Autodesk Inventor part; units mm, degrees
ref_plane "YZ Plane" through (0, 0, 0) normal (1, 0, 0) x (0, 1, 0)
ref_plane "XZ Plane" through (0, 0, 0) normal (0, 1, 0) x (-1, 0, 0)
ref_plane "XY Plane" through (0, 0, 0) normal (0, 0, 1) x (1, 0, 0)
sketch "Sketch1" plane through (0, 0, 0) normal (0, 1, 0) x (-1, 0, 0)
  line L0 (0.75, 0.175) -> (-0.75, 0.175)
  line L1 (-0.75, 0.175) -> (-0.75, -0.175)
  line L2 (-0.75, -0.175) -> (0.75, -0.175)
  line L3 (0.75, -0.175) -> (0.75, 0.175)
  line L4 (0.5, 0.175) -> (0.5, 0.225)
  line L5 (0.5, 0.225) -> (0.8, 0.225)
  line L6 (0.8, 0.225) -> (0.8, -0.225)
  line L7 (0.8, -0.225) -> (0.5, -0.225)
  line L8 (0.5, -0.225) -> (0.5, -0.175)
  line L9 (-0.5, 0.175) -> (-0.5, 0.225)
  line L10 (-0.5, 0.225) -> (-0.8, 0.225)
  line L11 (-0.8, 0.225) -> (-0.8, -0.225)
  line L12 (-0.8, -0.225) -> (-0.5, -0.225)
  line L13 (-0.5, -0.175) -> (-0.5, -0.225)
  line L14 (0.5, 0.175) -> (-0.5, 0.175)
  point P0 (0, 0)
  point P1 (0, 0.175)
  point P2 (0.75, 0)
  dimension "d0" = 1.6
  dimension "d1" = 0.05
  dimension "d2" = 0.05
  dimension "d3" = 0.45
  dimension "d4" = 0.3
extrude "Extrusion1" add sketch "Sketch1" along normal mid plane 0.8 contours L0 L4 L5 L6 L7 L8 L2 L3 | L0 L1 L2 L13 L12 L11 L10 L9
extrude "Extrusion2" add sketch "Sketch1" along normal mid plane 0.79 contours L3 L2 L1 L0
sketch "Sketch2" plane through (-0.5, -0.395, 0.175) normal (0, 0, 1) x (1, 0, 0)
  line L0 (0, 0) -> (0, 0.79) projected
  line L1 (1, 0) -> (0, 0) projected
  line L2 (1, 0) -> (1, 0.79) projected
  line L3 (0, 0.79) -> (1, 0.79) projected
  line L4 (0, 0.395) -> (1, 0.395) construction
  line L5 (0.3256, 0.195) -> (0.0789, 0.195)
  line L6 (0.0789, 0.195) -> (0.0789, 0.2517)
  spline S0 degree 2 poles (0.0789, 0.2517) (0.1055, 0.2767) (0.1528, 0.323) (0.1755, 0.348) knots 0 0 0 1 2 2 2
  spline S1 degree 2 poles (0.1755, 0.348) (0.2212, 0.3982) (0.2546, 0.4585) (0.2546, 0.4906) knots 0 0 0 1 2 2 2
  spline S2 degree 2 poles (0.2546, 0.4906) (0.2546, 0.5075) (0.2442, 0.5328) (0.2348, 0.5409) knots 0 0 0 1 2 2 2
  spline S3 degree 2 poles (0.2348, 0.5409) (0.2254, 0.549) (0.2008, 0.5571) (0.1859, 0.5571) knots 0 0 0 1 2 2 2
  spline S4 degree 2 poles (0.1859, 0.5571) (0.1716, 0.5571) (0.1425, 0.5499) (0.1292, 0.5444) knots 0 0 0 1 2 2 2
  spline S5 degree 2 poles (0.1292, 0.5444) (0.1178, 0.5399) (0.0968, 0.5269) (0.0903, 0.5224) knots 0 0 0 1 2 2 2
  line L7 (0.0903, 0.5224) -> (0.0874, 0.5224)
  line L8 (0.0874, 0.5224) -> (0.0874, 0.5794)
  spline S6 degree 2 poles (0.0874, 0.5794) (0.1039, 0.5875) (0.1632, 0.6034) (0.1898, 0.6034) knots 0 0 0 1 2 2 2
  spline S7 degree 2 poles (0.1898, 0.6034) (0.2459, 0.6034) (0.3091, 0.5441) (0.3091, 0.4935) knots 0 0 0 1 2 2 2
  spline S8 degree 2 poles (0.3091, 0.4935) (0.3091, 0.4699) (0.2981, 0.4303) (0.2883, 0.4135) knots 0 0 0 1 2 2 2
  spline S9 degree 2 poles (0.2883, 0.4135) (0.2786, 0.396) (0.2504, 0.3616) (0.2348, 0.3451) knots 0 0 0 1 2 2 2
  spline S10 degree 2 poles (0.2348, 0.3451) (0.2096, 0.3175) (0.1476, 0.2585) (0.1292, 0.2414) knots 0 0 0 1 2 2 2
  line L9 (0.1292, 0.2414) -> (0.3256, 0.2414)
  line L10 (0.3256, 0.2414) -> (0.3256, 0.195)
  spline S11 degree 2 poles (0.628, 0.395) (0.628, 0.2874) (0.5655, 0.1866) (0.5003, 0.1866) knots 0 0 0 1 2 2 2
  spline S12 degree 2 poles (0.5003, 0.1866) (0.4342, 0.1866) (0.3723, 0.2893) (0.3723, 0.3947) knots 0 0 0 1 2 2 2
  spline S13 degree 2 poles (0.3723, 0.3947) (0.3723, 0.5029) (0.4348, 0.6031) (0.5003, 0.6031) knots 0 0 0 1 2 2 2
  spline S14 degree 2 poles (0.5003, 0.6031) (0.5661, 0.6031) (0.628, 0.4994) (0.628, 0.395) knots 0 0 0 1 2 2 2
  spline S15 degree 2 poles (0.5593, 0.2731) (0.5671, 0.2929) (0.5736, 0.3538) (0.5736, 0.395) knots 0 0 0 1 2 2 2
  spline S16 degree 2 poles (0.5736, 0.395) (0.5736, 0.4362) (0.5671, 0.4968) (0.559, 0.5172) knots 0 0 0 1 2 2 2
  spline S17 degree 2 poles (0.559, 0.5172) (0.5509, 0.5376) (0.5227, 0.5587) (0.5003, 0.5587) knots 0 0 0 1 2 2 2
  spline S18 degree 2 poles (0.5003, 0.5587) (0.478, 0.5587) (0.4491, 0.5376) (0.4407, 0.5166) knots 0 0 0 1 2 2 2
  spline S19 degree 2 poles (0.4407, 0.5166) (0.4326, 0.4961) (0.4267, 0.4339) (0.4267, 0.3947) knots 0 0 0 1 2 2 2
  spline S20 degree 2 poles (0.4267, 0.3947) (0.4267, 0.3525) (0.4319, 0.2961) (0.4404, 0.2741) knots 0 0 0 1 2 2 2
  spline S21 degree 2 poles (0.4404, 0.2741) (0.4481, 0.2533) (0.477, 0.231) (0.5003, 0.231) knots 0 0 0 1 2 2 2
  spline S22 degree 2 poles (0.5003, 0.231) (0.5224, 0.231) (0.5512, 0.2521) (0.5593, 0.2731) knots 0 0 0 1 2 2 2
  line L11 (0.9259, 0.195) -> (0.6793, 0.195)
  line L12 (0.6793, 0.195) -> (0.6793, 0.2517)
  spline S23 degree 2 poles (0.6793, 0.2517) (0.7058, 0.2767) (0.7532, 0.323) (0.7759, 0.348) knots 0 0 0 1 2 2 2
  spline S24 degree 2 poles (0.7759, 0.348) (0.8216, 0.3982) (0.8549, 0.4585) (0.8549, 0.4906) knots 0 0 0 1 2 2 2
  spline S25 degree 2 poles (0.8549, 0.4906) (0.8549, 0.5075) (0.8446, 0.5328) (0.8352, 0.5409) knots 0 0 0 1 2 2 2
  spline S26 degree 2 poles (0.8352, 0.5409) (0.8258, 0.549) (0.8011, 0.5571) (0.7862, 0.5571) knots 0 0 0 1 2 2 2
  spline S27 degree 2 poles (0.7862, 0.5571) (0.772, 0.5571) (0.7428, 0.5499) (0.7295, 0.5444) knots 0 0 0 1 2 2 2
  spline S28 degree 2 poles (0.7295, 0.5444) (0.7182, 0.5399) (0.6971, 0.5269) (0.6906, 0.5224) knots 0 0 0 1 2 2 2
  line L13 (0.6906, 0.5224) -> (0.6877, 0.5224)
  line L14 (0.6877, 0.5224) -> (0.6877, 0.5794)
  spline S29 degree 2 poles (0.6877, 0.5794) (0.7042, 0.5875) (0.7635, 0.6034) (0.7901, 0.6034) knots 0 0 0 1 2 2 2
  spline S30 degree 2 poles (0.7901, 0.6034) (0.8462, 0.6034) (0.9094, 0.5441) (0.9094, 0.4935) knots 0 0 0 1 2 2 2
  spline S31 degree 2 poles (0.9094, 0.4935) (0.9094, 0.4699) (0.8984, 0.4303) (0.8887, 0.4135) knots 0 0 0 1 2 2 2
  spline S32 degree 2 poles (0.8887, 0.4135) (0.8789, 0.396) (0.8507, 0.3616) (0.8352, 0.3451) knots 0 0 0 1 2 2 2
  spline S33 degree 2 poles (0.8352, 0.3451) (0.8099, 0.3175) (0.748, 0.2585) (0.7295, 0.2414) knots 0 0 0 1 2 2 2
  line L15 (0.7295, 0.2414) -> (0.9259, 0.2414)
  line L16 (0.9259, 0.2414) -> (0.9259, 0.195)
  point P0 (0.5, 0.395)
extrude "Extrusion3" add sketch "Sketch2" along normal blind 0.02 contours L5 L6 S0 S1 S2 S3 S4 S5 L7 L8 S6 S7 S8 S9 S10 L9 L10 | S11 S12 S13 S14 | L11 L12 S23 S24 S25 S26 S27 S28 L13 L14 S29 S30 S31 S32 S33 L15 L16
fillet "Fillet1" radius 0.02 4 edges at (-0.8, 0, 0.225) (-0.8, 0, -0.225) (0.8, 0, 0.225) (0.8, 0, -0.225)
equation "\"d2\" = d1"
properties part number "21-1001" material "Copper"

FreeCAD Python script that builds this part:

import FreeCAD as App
import Part
import Sketcher


def edges_at(feature, points):
    """Names of the edges that pass closest to the given points."""
    edges = feature.Shape.Edges
    near = lambda p: min(range(len(edges)), key=lambda i: edges[i].distToShape(Part.Vertex(*p))[0])
    return sorted({f"Edge{near(p) + 1}" for p in points})

doc = App.newDocument("Part")
body = doc.addObject("PartDesign::Body", "Body")
body.AllowCompound = True

# Sketch on XZ plane
sketch1 = body.newObject("Sketcher::SketchObject", "Sketch")
sketch1.AttachmentSupport = (doc.getObject("XZ_Plane"), [""])
sketch1.MapMode = "FlatFace"
sketch1.addGeometry(Part.LineSegment(App.Vector(-0.5, 0.17, 0), App.Vector(-0.75, 0.17, 0)), False)
sketch1.addGeometry(Part.LineSegment(App.Vector(-0.75, 0.17, 0), App.Vector(-0.75, -0.17, 0)), False)
sketch1.addGeometry(Part.LineSegment(App.Vector(-0.75, -0.17, 0), App.Vector(-0.5, -0.17, 0)), False)
sketch1.addGeometry(Part.LineSegment(App.Vector(-0.5, -0.17, 0), App.Vector(-0.5, -0.23, 0)), False)
sketch1.addGeometry(Part.LineSegment(App.Vector(-0.5, -0.23, 0), App.Vector(-0.8, -0.23, 0)), False)
sketch1.addGeometry(Part.LineSegment(App.Vector(-0.8, -0.23, 0), App.Vector(-0.8, 0.23, 0)), False)
sketch1.addGeometry(Part.LineSegment(App.Vector(-0.8, 0.23, 0), App.Vector(-0.5, 0.23, 0)), False)
sketch1.addGeometry(Part.LineSegment(App.Vector(-0.5, 0.23, 0), App.Vector(-0.5, 0.17, 0)), False)
sketch1.addGeometry(Part.LineSegment(App.Vector(0.75, 0.17, 0), App.Vector(0.5, 0.17, 0)), False)
sketch1.addGeometry(Part.LineSegment(App.Vector(0.5, 0.17, 0), App.Vector(0.5, 0.23, 0)), False)
sketch1.addGeometry(Part.LineSegment(App.Vector(0.5, 0.23, 0), App.Vector(0.8, 0.23, 0)), False)
sketch1.addGeometry(Part.LineSegment(App.Vector(0.8, 0.23, 0), App.Vector(0.8, -0.23, 0)), False)
sketch1.addGeometry(Part.LineSegment(App.Vector(0.8, -0.23, 0), App.Vector(0.5, -0.23, 0)), False)
sketch1.addGeometry(Part.LineSegment(App.Vector(0.5, -0.23, 0), App.Vector(0.5, -0.17, 0)), False)
sketch1.addGeometry(Part.LineSegment(App.Vector(0.5, -0.17, 0), App.Vector(0.75, -0.17, 0)), False)
sketch1.addGeometry(Part.LineSegment(App.Vector(0.75, -0.17, 0), App.Vector(0.75, 0.17, 0)), False)
sketch1.addConstraint(Sketcher.Constraint("Coincident", 0, 2, 1, 1))
sketch1.addConstraint(Sketcher.Constraint("Coincident", 1, 2, 2, 1))
sketch1.addConstraint(Sketcher.Constraint("Coincident", 2, 2, 3, 1))
sketch1.addConstraint(Sketcher.Constraint("Coincident", 3, 2, 4, 1))
sketch1.addConstraint(Sketcher.Constraint("Coincident", 4, 2, 5, 1))
sketch1.addConstraint(Sketcher.Constraint("Coincident", 5, 2, 6, 1))
sketch1.addConstraint(Sketcher.Constraint("Coincident", 6, 2, 7, 1))
sketch1.addConstraint(Sketcher.Constraint("Coincident", 7, 2, 0, 1))
sketch1.addConstraint(Sketcher.Constraint("Coincident", 8, 2, 9, 1))
sketch1.addConstraint(Sketcher.Constraint("Coincident", 9, 2, 10, 1))
sketch1.addConstraint(Sketcher.Constraint("Coincident", 10, 2, 11, 1))
sketch1.addConstraint(Sketcher.Constraint("Coincident", 11, 2, 12, 1))
sketch1.addConstraint(Sketcher.Constraint("Coincident", 12, 2, 13, 1))
sketch1.addConstraint(Sketcher.Constraint("Coincident", 13, 2, 14, 1))
sketch1.addConstraint(Sketcher.Constraint("Coincident", 14, 2, 15, 1))
sketch1.addConstraint(Sketcher.Constraint("Coincident", 15, 2, 8, 1))
sketch1.addConstraint(Sketcher.Constraint("Horizontal", 0))
sketch1.addConstraint(Sketcher.Constraint("Vertical", 1))
sketch1.addConstraint(Sketcher.Constraint("Horizontal", 2))
sketch1.addConstraint(Sketcher.Constraint("Vertical", 3))
sketch1.addConstraint(Sketcher.Constraint("Horizontal", 4))
sketch1.addConstraint(Sketcher.Constraint("Vertical", 5))
sketch1.addConstraint(Sketcher.Constraint("Horizontal", 6))
sketch1.addConstraint(Sketcher.Constraint("Vertical", 7))
sketch1.addConstraint(Sketcher.Constraint("Horizontal", 8))
sketch1.addConstraint(Sketcher.Constraint("Vertical", 9))
sketch1.addConstraint(Sketcher.Constraint("Horizontal", 10))
sketch1.addConstraint(Sketcher.Constraint("Vertical", 11))
sketch1.addConstraint(Sketcher.Constraint("Horizontal", 12))
sketch1.addConstraint(Sketcher.Constraint("Vertical", 13))
sketch1.addConstraint(Sketcher.Constraint("Horizontal", 14))
sketch1.addConstraint(Sketcher.Constraint("Vertical", 15))
sketch1.addConstraint(Sketcher.Constraint("Symmetric", 2, 2, 8, 2, -1, 1))
sketch1.addConstraint(Sketcher.Constraint("Symmetric", 4, 2, 10, 2, -1, 1))
sketch1.addConstraint(Sketcher.Constraint("Symmetric", 6, 2, 12, 2, -1, 1))
sketch1.addConstraint(Sketcher.Constraint("Symmetric", 0, 2, 14, 2, -1, 1))
sketch1.addConstraint(Sketcher.Constraint("Symmetric", 7, 2, 8, 2, -2))
sketch1.addConstraint(Sketcher.Constraint("Horizontal", 6, 2, 9, 2))
sketch1.addConstraint(Sketcher.Constraint("DistanceX", 4, 2, 4, 1, 0.3))
sketch1.addConstraint(Sketcher.Constraint("DistanceY", 3, 2, 3, 1, 0.05))
sketch1.addConstraint(Sketcher.Constraint("DistanceY", 5, 1, 5, 2, 0.45))
sketch1.addConstraint(Sketcher.Constraint("DistanceX", 4, 2, 1, 2, 0.05))
sketch1.addConstraint(Sketcher.Constraint("DistanceX", 7, 2, 8, 2, 1.0))
pad1 = body.newObject("PartDesign::Pad", "Pad")
pad1.Profile = sketch1
pad1.Length = 0.8
pad1.Midplane = True

# Sketch on XZ plane
sketch2 = body.newObject("Sketcher::SketchObject", "Sketch001")
sketch2.AttachmentSupport = (doc.getObject("XZ_Plane"), [""])
sketch2.MapMode = "FlatFace"
sketch2.addGeometry(Part.LineSegment(App.Vector(-0.75, -0.17, 0), App.Vector(-0.75, 0.17, 0)), False)
sketch2.addGeometry(Part.LineSegment(App.Vector(-0.75, 0.17, 0), App.Vector(0.75, 0.17, 0)), False)
sketch2.addGeometry(Part.LineSegment(App.Vector(0.75, 0.17, 0), App.Vector(0.75, -0.17, 0)), False)
sketch2.addGeometry(Part.LineSegment(App.Vector(0.75, -0.17, 0), App.Vector(-0.75, -0.17, 0)), False)
sketch2.addConstraint(Sketcher.Constraint("Coincident", 0, 2, 1, 1))
sketch2.addConstraint(Sketcher.Constraint("Coincident", 1, 2, 2, 1))
sketch2.addConstraint(Sketcher.Constraint("Coincident", 2, 2, 3, 1))
sketch2.addConstraint(Sketcher.Constraint("Coincident", 3, 2, 0, 1))
sketch2.addConstraint(Sketcher.Constraint("Vertical", 0))
sketch2.addConstraint(Sketcher.Constraint("Horizontal", 1))
sketch2.addConstraint(Sketcher.Constraint("Vertical", 2))
sketch2.addConstraint(Sketcher.Constraint("Horizontal", 3))
sketch2.addConstraint(Sketcher.Constraint("Symmetric", 0, 2, 2, 2, -1, 1))
sketch2.addConstraint(Sketcher.Constraint("DistanceX", 1, 1, 1, 2, 1.5))
sketch2.addConstraint(Sketcher.Constraint("DistanceY", 0, 1, 0, 2, 0.35))
pad2 = body.newObject("PartDesign::Pad", "Pad001")
pad2.Profile = sketch2
pad2.Length = 0.79
pad2.Midplane = True

# Sketch on XY plane
sketch3 = body.newObject("Sketcher::SketchObject", "Sketch002")
sketch3.AttachmentSupport = (doc.getObject("XY_Plane"), [""])
sketch3.MapMode = "FlatFace"
sketch3.AttachmentOffset = App.Placement(App.Vector(0, 0, 0.175), App.Rotation())
sketch3.addGeometry(Part.LineSegment(App.Vector(-0.4211, -0.2, 0), App.Vector(-0.1744, -0.2, 0)), False)
sketch3.addGeometry(Part.LineSegment(App.Vector(-0.1744, -0.2, 0), App.Vector(-0.1744, -0.1536, 0)), False)
sketch3.addGeometry(Part.LineSegment(App.Vector(-0.1744, -0.1536, 0), App.Vector(-0.3708, -0.1536, 0)), False)
sketch3.addGeometry(Part.BSplineCurve([App.Vector(-0.2652, -0.0499, 0), App.Vector(-0.2904, -0.0775, 0), App.Vector(-0.3524, -0.1365, 0), App.Vector(-0.3708, -0.1536, 0)], [3, 1, 3], [0, 1, 2], False, 2, [1, 1, 1, 1], False), False)
sketch3.addGeometry(Part.BSplineCurve([App.Vector(-0.2117, 0.0185, 0), App.Vector(-0.2214, 0.001, 0), App.Vector(-0.2496, -0.0334, 0), App.Vector(-0.2652, -0.0499, 0)], [3, 1, 3], [0, 1, 2], False, 2, [1, 1, 1, 1], False), False)
sketch3.addGeometry(Part.BSplineCurve([App.Vector(-0.1909, 0.0985, 0), App.Vector(-0.1909, 0.0749, 0), App.Vector(-0.2019, 0.0353, 0), App.Vector(-0.2117, 0.0185, 0)], [3, 1, 3], [0, 1, 2], False, 2, [1, 1, 1, 1], False), False)
sketch3.addGeometry(Part.BSplineCurve([App.Vector(-0.3102, 0.2084, 0), App.Vector(-0.2541, 0.2084, 0), App.Vector(-0.1909, 0.1491, 0), App.Vector(-0.1909, 0.0985, 0)], [3, 1, 3], [0, 1, 2], False, 2, [1, 1, 1, 1], False), False)
sketch3.addGeometry(Part.BSplineCurve([App.Vector(-0.4126, 0.1844, 0), App.Vector(-0.3961, 0.1925, 0), App.Vector(-0.3368, 0.2084, 0), App.Vector(-0.3102, 0.2084, 0)], [3, 1, 3], [0, 1, 2], False, 2, [1, 1, 1, 1], False), False)
sketch3.addGeometry(Part.LineSegment(App.Vector(-0.4126, 0.1844, 0), App.Vector(-0.4126, 0.1274, 0)), False)
sketch3.addGeometry(Part.LineSegment(App.Vector(-0.4126, 0.1274, 0), App.Vector(-0.4097, 0.1274, 0)), False)
sketch3.addGeometry(Part.BSplineCurve([App.Vector(-0.3708, 0.1494, 0), App.Vector(-0.3822, 0.1449, 0), App.Vector(-0.4032, 0.1319, 0), App.Vector(-0.4097, 0.1274, 0)], [3, 1, 3], [0, 1, 2], False, 2, [1, 1, 1, 1], False), False)
sketch3.addGeometry(Part.BSplineCurve([App.Vector(-0.3141, 0.1621, 0), App.Vector(-0.3284, 0.1621, 0), App.Vector(-0.3575, 0.1549, 0), App.Vector(-0.3708, 0.1494, 0)], [3, 1, 3], [0, 1, 2], False, 2, [1, 1, 1, 1], False), False)
sketch3.addGeometry(Part.BSplineCurve([App.Vector(-0.2652, 0.1459, 0), App.Vector(-0.2746, 0.154, 0), App.Vector(-0.2992, 0.1621, 0), App.Vector(-0.3141, 0.1621, 0)], [3, 1, 3], [0, 1, 2], False, 2, [1, 1, 1, 1], False), False)
sketch3.addGeometry(Part.BSplineCurve([App.Vector(-0.2454, 0.0956, 0), App.Vector(-0.2454, 0.1125, 0), App.Vector(-0.2558, 0.1378, 0), App.Vector(-0.2652, 0.1459, 0)], [3, 1, 3], [0, 1, 2], False, 2, [1, 1, 1, 1], False), False)
sketch3.addGeometry(Part.BSplineCurve([App.Vector(-0.3245, -0.047, 0), App.Vector(-0.2788, 0.0032, 0), App.Vector(-0.2454, 0.0635, 0), App.Vector(-0.2454, 0.0956, 0)], [3, 1, 3], [0, 1, 2], False, 2, [1, 1, 1, 1], False), False)
sketch3.addGeometry(Part.BSplineCurve([App.Vector(-0.4211, -0.1433, 0), App.Vector(-0.3945, -0.1183, 0), App.Vector(-0.3472, -0.072, 0), App.Vector(-0.3245, -0.047, 0)], [3, 1, 3], [0, 1, 2], False, 2, [1, 1, 1, 1], False), False)
sketch3.addGeometry(Part.LineSegment(App.Vector(-0.4211, -0.1433, 0), App.Vector(-0.4211, -0.2, 0)), False)
sketch3.addGeometry(Part.BSplineCurve([App.Vector(0.128, 0, 0), App.Vector(0.128, -0.1076, 0), App.Vector(0.0655, -0.2084, 0), App.Vector(0.0003, -0.2084, 0)], [3, 1, 3], [0, 1, 2], False, 2, [1, 1, 1, 1], False), False)
sketch3.addGeometry(Part.BSplineCurve([App.Vector(0.0003, 0.2081, 0), App.Vector(0.0661, 0.2081, 0), App.Vector(0.128, 0.1044, 0), App.Vector(0.128, 0, 0)], [3, 1, 3], [0, 1, 2], False, 2, [1, 1, 1, 1], False), False)
sketch3.addGeometry(Part.BSplineCurve([App.Vector(-0.1277, -0.0003, 0), App.Vector(-0.1277, 0.1079, 0), App.Vector(-0.0652, 0.2081, 0), App.Vector(0.0003, 0.2081, 0)], [3, 1, 3], [0, 1, 2], False, 2, [1, 1, 1, 1], False), False)
sketch3.addGeometry(Part.BSplineCurve([App.Vector(0.0003, -0.2084, 0), App.Vector(-0.0658, -0.2084, 0), App.Vector(-0.1277, -0.1057, 0), App.Vector(-0.1277, -0.0003, 0)], [3, 1, 3], [0, 1, 2], False, 2, [1, 1, 1, 1], False), False)
sketch3.addGeometry(Part.BSplineCurve([App.Vector(0.0593, -0.1219, 0), App.Vector(0.0671, -0.1021, 0), App.Vector(0.0736, -0.0412, 0), App.Vector(0.0736, 0, 0)], [3, 1, 3], [0, 1, 2], False, 2, [1, 1, 1, 1], False), False)
sketch3.addGeometry(Part.BSplineCurve([App.Vector(0.0003, -0.164, 0), App.Vector(0.0224, -0.164, 0), App.Vector(0.0512, -0.1429, 0), App.Vector(0.0593, -0.1219, 0)], [3, 1, 3], [0, 1, 2], False, 2, [1, 1, 1, 1], False), False)
sketch3.addGeometry(Part.BSplineCurve([App.Vector(-0.0596, -0.1209, 0), App.Vector(-0.0519, -0.1417, 0), App.Vector(-0.023, -0.164, 0), App.Vector(0.0003, -0.164, 0)], [3, 1, 3], [0, 1, 2], False, 2, [1, 1, 1, 1], False), False)
sketch3.addGeometry(Part.BSplineCurve([App.Vector(-0.0733, -0.0003, 0), App.Vector(-0.0733, -0.0425, 0), App.Vector(-0.0681, -0.0989, 0), App.Vector(-0.0596, -0.1209, 0)], [3, 1, 3], [0, 1, 2], False, 2, [1, 1, 1, 1], False), False)
sketch3.addGeometry(Part.BSplineCurve([App.Vector(-0.0593, 0.1216, 0), App.Vector(-0.0674, 0.1011, 0), App.Vector(-0.0733, 0.0389, 0), App.Vector(-0.0733, -0.0003, 0)], [3, 1, 3], [0, 1, 2], False, 2, [1, 1, 1, 1], False), False)
sketch3.addGeometry(Part.BSplineCurve([App.Vector(0.0003, 0.1637, 0), App.Vector(-0.022, 0.1637, 0), App.Vector(-0.0509, 0.1426, 0), App.Vector(-0.0593, 0.1216, 0)], [3, 1, 3], [0, 1, 2], False, 2, [1, 1, 1, 1], False), False)
sketch3.addGeometry(Part.BSplineCurve([App.Vector(0.059, 0.1222, 0), App.Vector(0.0509, 0.1426, 0), App.Vector(0.0227, 0.1637, 0), App.Vector(0.0003, 0.1637, 0)], [3, 1, 3], [0, 1, 2], False, 2, [1, 1, 1, 1], False), False)
sketch3.addGeometry(Part.BSplineCurve([App.Vector(0.0736, 0, 0), App.Vector(0.0736, 0.0412, 0), App.Vector(0.0671, 0.1018, 0), App.Vector(0.059, 0.1222, 0)], [3, 1, 3], [0, 1, 2], False, 2, [1, 1, 1, 1], False), False)
sketch3.addGeometry(Part.LineSegment(App.Vector(0.1793, -0.2, 0), App.Vector(0.4259, -0.2, 0)), False)
sketch3.addGeometry(Part.LineSegment(App.Vector(0.4259, -0.2, 0), App.Vector(0.4259, -0.1536, 0)), False)
sketch3.addGeometry(Part.LineSegment(App.Vector(0.4259, -0.1536, 0), App.Vector(0.2295, -0.1536, 0)), False)
sketch3.addGeometry(Part.BSplineCurve([App.Vector(0.3352, -0.0499, 0), App.Vector(0.3099, -0.0775, 0), App.Vector(0.248, -0.1365, 0), App.Vector(0.2295, -0.1536, 0)], [3, 1, 3], [0, 1, 2], False, 2, [1, 1, 1, 1], False), False)
sketch3.addGeometry(Part.BSplineCurve([App.Vector(0.3887, 0.0185, 0), App.Vector(0.3789, 0.001, 0), App.Vector(0.3507, -0.0334, 0), App.Vector(0.3352, -0.0499, 0)], [3, 1, 3], [0, 1, 2], False, 2, [1, 1, 1, 1], False), False)
sketch3.addGeometry(Part.BSplineCurve([App.Vector(0.4094, 0.0985, 0), App.Vector(0.4094, 0.0749, 0), App.Vector(0.3984, 0.0353, 0), App.Vector(0.3887, 0.0185, 0)], [3, 1, 3], [0, 1, 2], False, 2, [1, 1, 1, 1], False), False)
sketch3.addGeometry(Part.BSplineCurve([App.Vector(0.2901, 0.2084, 0), App.Vector(0.3462, 0.2084, 0), App.Vector(0.4094, 0.1491, 0), App.Vector(0.4094, 0.0985, 0)], [3, 1, 3], [0, 1, 2], False, 2, [1, 1, 1, 1], False), False)
sketch3.addGeometry(Part.BSplineCurve([App.Vector(0.1877, 0.1844, 0), App.Vector(0.2042, 0.1925, 0), App.Vector(0.2635, 0.2084, 0), App.Vector(0.2901, 0.2084, 0)], [3, 1, 3], [0, 1, 2], False, 2, [1, 1, 1, 1], False), False)
sketch3.addGeometry(Part.LineSegment(App.Vector(0.1877, 0.1844, 0), App.Vector(0.1877, 0.1274, 0)), False)
sketch3.addGeometry(Part.LineSegment(App.Vector(0.1877, 0.1274, 0), App.Vector(0.1906, 0.1274, 0)), False)
sketch3.addGeometry(Part.BSplineCurve([App.Vector(0.2295, 0.1494, 0), App.Vector(0.2182, 0.1449, 0), App.Vector(0.1971, 0.1319, 0), App.Vector(0.1906, 0.1274, 0)], [3, 1, 3], [0, 1, 2], False, 2, [1, 1, 1, 1], False), False)
sketch3.addGeometry(Part.BSplineCurve([App.Vector(0.2862, 0.1621, 0), App.Vector(0.272, 0.1621, 0), App.Vector(0.2428, 0.1549, 0), App.Vector(0.2295, 0.1494, 0)], [3, 1, 3], [0, 1, 2], False, 2, [1, 1, 1, 1], False), False)
sketch3.addGeometry(Part.BSplineCurve([App.Vector(0.3352, 0.1459, 0), App.Vector(0.3258, 0.154, 0), App.Vector(0.3011, 0.1621, 0), App.Vector(0.2862, 0.1621, 0)], [3, 1, 3], [0, 1, 2], False, 2, [1, 1, 1, 1], False), False)
sketch3.addGeometry(Part.BSplineCurve([App.Vector(0.3549, 0.0956, 0), App.Vector(0.3549, 0.1125, 0), App.Vector(0.3446, 0.1378, 0), App.Vector(0.3352, 0.1459, 0)], [3, 1, 3], [0, 1, 2], False, 2, [1, 1, 1, 1], False), False)
sketch3.addGeometry(Part.BSplineCurve([App.Vector(0.2759, -0.047, 0), App.Vector(0.3216, 0.0032, 0), App.Vector(0.3549, 0.0635, 0), App.Vector(0.3549, 0.0956, 0)], [3, 1, 3], [0, 1, 2], False, 2, [1, 1, 1, 1], False), False)
sketch3.addGeometry(Part.BSplineCurve([App.Vector(0.1793, -0.1433, 0), App.Vector(0.2058, -0.1183, 0), App.Vector(0.2532, -0.072, 0), App.Vector(0.2759, -0.047, 0)], [3, 1, 3], [0, 1, 2], False, 2, [1, 1, 1, 1], False), False)
sketch3.addGeometry(Part.LineSegment(App.Vector(0.1793, -0.1433, 0), App.Vector(0.1793, -0.2, 0)), False)
sketch3.addConstraint(Sketcher.Constraint("Block", 3))
sketch3.addConstraint(Sketcher.Constraint("Block", 4))
sketch3.addConstraint(Sketcher.Constraint("Block", 5))
sketch3.addConstraint(Sketcher.Constraint("Block", 6))
sketch3.addConstraint(Sketcher.Constraint("Block", 7))
sketch3.addConstraint(Sketcher.Constraint("Block", 10))
sketch3.addConstraint(Sketcher.Constraint("Block", 11))
sketch3.addConstraint(Sketcher.Constraint("Block", 12))
sketch3.addConstraint(Sketcher.Constraint("Block", 13))
sketch3.addConstraint(Sketcher.Constraint("Block", 14))
sketch3.addConstraint(Sketcher.Constraint("Block", 15))
sketch3.addConstraint(Sketcher.Constraint("Block", 17))
sketch3.addConstraint(Sketcher.Constraint("Block", 18))
sketch3.addConstraint(Sketcher.Constraint("Block", 19))
sketch3.addConstraint(Sketcher.Constraint("Block", 20))
sketch3.addConstraint(Sketcher.Constraint("Block", 21))
sketch3.addConstraint(Sketcher.Constraint("Block", 22))
sketch3.addConstraint(Sketcher.Constraint("Block", 23))
sketch3.addConstraint(Sketcher.Constraint("Block", 24))
sketch3.addConstraint(Sketcher.Constraint("Block", 25))
sketch3.addConstraint(Sketcher.Constraint("Block", 26))
sketch3.addConstraint(Sketcher.Constraint("Block", 27))
sketch3.addConstraint(Sketcher.Constraint("Block", 28))
sketch3.addConstraint(Sketcher.Constraint("Block", 32))
sketch3.addConstraint(Sketcher.Constraint("Block", 33))
sketch3.addConstraint(Sketcher.Constraint("Block", 34))
sketch3.addConstraint(Sketcher.Constraint("Block", 35))
sketch3.addConstraint(Sketcher.Constraint("Block", 36))
sketch3.addConstraint(Sketcher.Constraint("Block", 39))
sketch3.addConstraint(Sketcher.Constraint("Block", 40))
sketch3.addConstraint(Sketcher.Constraint("Block", 41))
sketch3.addConstraint(Sketcher.Constraint("Block", 42))
sketch3.addConstraint(Sketcher.Constraint("Block", 43))
sketch3.addConstraint(Sketcher.Constraint("Block", 44))
sketch3.addConstraint(Sketcher.Constraint("Coincident", 0, 2, 1, 1))
sketch3.addConstraint(Sketcher.Constraint("Coincident", 1, 2, 2, 1))
sketch3.addConstraint(Sketcher.Constraint("Coincident", 2, 2, 3, 2))
sketch3.addConstraint(Sketcher.Constraint("Coincident", 7, 1, 8, 1))
sketch3.addConstraint(Sketcher.Constraint("Coincident", 8, 2, 9, 1))
sketch3.addConstraint(Sketcher.Constraint("Coincident", 9, 2, 10, 2))
sketch3.addConstraint(Sketcher.Constraint("Coincident", 15, 1, 16, 1))
sketch3.addConstraint(Sketcher.Constraint("Coincident", 16, 2, 0, 1))
sketch3.addConstraint(Sketcher.Constraint("Coincident", 29, 2, 30, 1))
sketch3.addConstraint(Sketcher.Constraint("Coincident", 30, 2, 31, 1))
sketch3.addConstraint(Sketcher.Constraint("Coincident", 31, 2, 32, 2))
sketch3.addConstraint(Sketcher.Constraint("Coincident", 36, 1, 37, 1))
sketch3.addConstraint(Sketcher.Constraint("Coincident", 37, 2, 38, 1))
sketch3.addConstraint(Sketcher.Constraint("Coincident", 38, 2, 39, 2))
sketch3.addConstraint(Sketcher.Constraint("Coincident", 44, 1, 45, 1))
sketch3.addConstraint(Sketcher.Constraint("Coincident", 45, 2, 29, 1))
sketch3.addConstraint(Sketcher.Constraint("Horizontal", 0))
sketch3.addConstraint(Sketcher.Constraint("Vertical", 1))
sketch3.addConstraint(Sketcher.Constraint("Horizontal", 2))
sketch3.addConstraint(Sketcher.Constraint("Vertical", 8))
sketch3.addConstraint(Sketcher.Constraint("Horizontal", 9))
sketch3.addConstraint(Sketcher.Constraint("Vertical", 16))
sketch3.addConstraint(Sketcher.Constraint("Horizontal", 29))
sketch3.addConstraint(Sketcher.Constraint("Vertical", 30))
sketch3.addConstraint(Sketcher.Constraint("Horizontal", 31))
sketch3.addConstraint(Sketcher.Constraint("Vertical", 37))
sketch3.addConstraint(Sketcher.Constraint("Horizontal", 38))
sketch3.addConstraint(Sketcher.Constraint("Vertical", 45))
sketch3.addConstraint(Sketcher.Constraint("Horizontal", 16, 2, 29, 2))
sketch3.addConstraint(Sketcher.Constraint("Equal", 0, 29))
sketch3.addConstraint(Sketcher.Constraint("DistanceY", 0, 2, -1, 1, 0.2))
sketch3.addConstraint(Sketcher.Constraint("DistanceX", 0, 1, 0, 2, 0.2467))
pad3 = body.newObject("PartDesign::Pad", "Pad002")
pad3.Profile = sketch3
pad3.Length = 0.02
doc.recompute()

fillet = body.newObject("PartDesign::Fillet", "Fillet")
fillet.Base = (pad3, edges_at(pad3, [
    (-0.8, 0, 0.225),
    (-0.8, 0, -0.225),
    (0.8, 0, 0.225),
    (0.8, 0, -0.225),
]))
fillet.Radius = 0.02

doc.recompute()
